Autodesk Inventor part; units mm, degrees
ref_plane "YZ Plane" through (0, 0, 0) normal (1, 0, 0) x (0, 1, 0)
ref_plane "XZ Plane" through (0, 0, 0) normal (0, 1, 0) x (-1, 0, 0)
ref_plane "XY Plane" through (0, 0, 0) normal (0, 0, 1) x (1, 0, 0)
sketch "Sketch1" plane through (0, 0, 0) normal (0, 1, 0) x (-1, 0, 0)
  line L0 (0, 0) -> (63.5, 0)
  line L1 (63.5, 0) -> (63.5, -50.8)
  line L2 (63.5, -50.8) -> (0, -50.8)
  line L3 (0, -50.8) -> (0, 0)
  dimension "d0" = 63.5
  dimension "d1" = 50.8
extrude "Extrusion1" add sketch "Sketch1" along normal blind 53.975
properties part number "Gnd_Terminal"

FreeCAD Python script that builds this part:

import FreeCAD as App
import Part
import Sketcher
Q = App.Units.Quantity

doc = App.newDocument("Part")
body = doc.addObject("PartDesign::Body", "Body")

# Sketch on XZ plane
sketch1 = doc.addObject("Sketcher::SketchObject", "Sketch")
body.addObject(sketch1)
sketch1.AttachmentSupport = (doc.XZ_Plane, [""])
sketch1.MapMode = "FlatFace"
sketch1.addGeometry(Part.LineSegment(App.Vector(-64, 0, 0), App.Vector(0, 0, 0)), False)
sketch1.addGeometry(Part.LineSegment(App.Vector(0, 0, 0), App.Vector(0, -51, 0)), False)
sketch1.addGeometry(Part.LineSegment(App.Vector(0, -51, 0), App.Vector(-64, -51, 0)), False)
sketch1.addGeometry(Part.LineSegment(App.Vector(-64, -51, 0), App.Vector(-64, 0, 0)), False)
sketch1.addConstraint(Sketcher.Constraint("Coincident", 0, 2, 1, 1))
sketch1.addConstraint(Sketcher.Constraint("Coincident", 1, 2, 2, 1))
sketch1.addConstraint(Sketcher.Constraint("Coincident", 2, 2, 3, 1))
sketch1.addConstraint(Sketcher.Constraint("Coincident", 3, 2, 0, 1))
sketch1.addConstraint(Sketcher.Constraint("Horizontal", 0))
sketch1.addConstraint(Sketcher.Constraint("Vertical", 1))
sketch1.addConstraint(Sketcher.Constraint("Horizontal", 2))
sketch1.addConstraint(Sketcher.Constraint("Vertical", 3))
sketch1.addConstraint(Sketcher.Constraint("Coincident", 0, 2, -1, 1))
sketch1.addConstraint(Sketcher.Constraint("DistanceY", 1, 2, 1, 1, Q("2 in")))
sketch1.addConstraint(Sketcher.Constraint("DistanceX", 0, 1, 0, 2, Q("2.5 in")))
pad1 = doc.addObject("PartDesign::Pad", "Pad")
body.addObject(pad1)
pad1.Profile = sketch1
pad1.Length = Q("2.125 in")
pad1.Reversed = True

doc.recompute()
